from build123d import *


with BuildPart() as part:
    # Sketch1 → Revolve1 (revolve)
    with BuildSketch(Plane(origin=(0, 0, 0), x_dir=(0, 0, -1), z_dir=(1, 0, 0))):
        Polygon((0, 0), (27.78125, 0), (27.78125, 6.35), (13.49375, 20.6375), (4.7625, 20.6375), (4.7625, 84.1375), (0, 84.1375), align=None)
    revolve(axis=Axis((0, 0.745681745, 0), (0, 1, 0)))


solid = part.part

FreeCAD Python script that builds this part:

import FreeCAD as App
import Part
import Sketcher
Q = App.Units.Quantity

doc = App.newDocument("Part")
params = doc.addObject("Spreadsheet::Sheet", "Params")
for row, (alias, value) in enumerate([
    ("sketch1_width", "2.5 in"),
    ("sketch1_width2", "0.25 in"),
    ("sketch1_width3", "3.3125 in"),
    ("sketch1_height", "1.09375 in"),
    ("sketch1_height2", "0.34375 in"),
    ("revolution_angle", "360 deg"),
], start=1):
    params.set(f"A{row}", alias)
    params.set(f"B{row}", "=" + value)
    params.setAlias(f"B{row}", alias)

body = doc.addObject("PartDesign::Body", "Body")

# Sketch on YZ plane
sketch1 = body.newObject("Sketcher::SketchObject", "Sketch")
sketch1.AttachmentSupport = (doc.getObject("YZ_Plane"), [""])
sketch1.MapMode = "FlatFace"
sketch1.addGeometry(Part.LineSegment(App.Vector(0, 0, 0), App.Vector(0, -27.78125, 0)), False)
sketch1.addGeometry(Part.LineSegment(App.Vector(0, -27.78125, 0), App.Vector(6.35, -27.78125, 0)), False)
sketch1.addGeometry(Part.LineSegment(App.Vector(6.35, -27.78125, 0), App.Vector(20.6375, -13.49375, 0)), False)
sketch1.addGeometry(Part.LineSegment(App.Vector(20.6375, -13.49375, 0), App.Vector(20.6375, -4.7625, 0)), False)
sketch1.addGeometry(Part.LineSegment(App.Vector(20.6375, -4.7625, 0), App.Vector(84.1375, -4.7625, 0)), False)
sketch1.addGeometry(Part.LineSegment(App.Vector(84.1375, -4.7625, 0), App.Vector(84.1375, 0, 0)), False)
sketch1.addGeometry(Part.LineSegment(App.Vector(84.1375, 0, 0), App.Vector(0, 0, 0)), False)
sketch1.addConstraint(Sketcher.Constraint("Coincident", 0, 2, 1, 1))
sketch1.addConstraint(Sketcher.Constraint("Coincident", 1, 2, 2, 1))
sketch1.addConstraint(Sketcher.Constraint("Coincident", 2, 2, 3, 1))
sketch1.addConstraint(Sketcher.Constraint("Coincident", 3, 2, 4, 1))
sketch1.addConstraint(Sketcher.Constraint("Coincident", 4, 2, 5, 1))
sketch1.addConstraint(Sketcher.Constraint("Coincident", 5, 2, 6, 1))
sketch1.addConstraint(Sketcher.Constraint("Coincident", 6, 2, 0, 1))
sketch1.addConstraint(Sketcher.Constraint("Vertical", 0))
sketch1.addConstraint(Sketcher.Constraint("Horizontal", 1))
sketch1.addConstraint(Sketcher.Constraint("Vertical", 3))
sketch1.addConstraint(Sketcher.Constraint("Horizontal", 4))
sketch1.addConstraint(Sketcher.Constraint("Vertical", 5))
sketch1.addConstraint(Sketcher.Constraint("Horizontal", 6))
sketch1.addConstraint(Sketcher.Constraint("Coincident", 6, 2, -1, 1))
sketch1.addConstraint(Sketcher.Constraint("DistanceX", 4, 1, 4, 2, Q("2.5 in")))
sketch1.addConstraint(Sketcher.Constraint("Angle", 2, Q("45 deg")))
sketch1.addConstraint(Sketcher.Constraint("DistanceX", 1, 1, 1, 2, Q("0.25 in")))
sketch1.addConstraint(Sketcher.Constraint("DistanceX", 6, 2, 6, 1, Q("3.3125 in")))
sketch1.addConstraint(Sketcher.Constraint("DistanceY", 0, 2, 0, 1, Q("1.09375 in")))
sketch1.addConstraint(Sketcher.Constraint("DistanceY", 3, 1, 3, 2, Q("0.34375 in")))
sketch1.setExpression("Constraints[14]", "Params.sketch1_width")
sketch1.setExpression("Constraints[16]", "Params.sketch1_width2")
sketch1.setExpression("Constraints[17]", "Params.sketch1_width3")
sketch1.setExpression("Constraints[18]", "Params.sketch1_height")
sketch1.setExpression("Constraints[19]", "Params.sketch1_height2")
revolution = body.newObject("PartDesign::Revolution", "Revolution")
revolution.Profile = sketch1
revolution.ReferenceAxis = (sketch1, ["H_Axis"])
revolution.setExpression("Angle", "Params.revolution_angle")

doc.recompute()
